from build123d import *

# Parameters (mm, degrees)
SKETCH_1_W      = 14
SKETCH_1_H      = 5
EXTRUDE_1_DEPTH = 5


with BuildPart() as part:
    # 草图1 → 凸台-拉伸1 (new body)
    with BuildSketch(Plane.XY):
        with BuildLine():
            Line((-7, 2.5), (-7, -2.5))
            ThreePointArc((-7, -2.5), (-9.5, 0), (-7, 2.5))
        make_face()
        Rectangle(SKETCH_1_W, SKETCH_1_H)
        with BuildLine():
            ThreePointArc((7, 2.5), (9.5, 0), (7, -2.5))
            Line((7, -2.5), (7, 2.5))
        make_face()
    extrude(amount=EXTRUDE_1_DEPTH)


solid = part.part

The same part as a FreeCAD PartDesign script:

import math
import FreeCAD as App
import Part
import Sketcher
from FreeCAD import Vector
Q = App.Units.Quantity

doc = App.newDocument("Part")
body = doc.addObject("PartDesign::Body", "Body")

# Sketch on XY plane
sketch1 = body.newObject("Sketcher::SketchObject", "Sketch")
sketch1.AttachmentSupport = (doc.getObject("XY_Plane"), [""])
sketch1.MapMode = "FlatFace"
sketch1.addGeometry(Part.ArcOfCircle(Part.Circle(Vector(-7, 0, 0), Vector(0, 0, 1), 2.5), math.radians(90), math.radians(270)), False)
sketch1.addGeometry(Part.LineSegment(Vector(-7, -2.5, 0), Vector(7, -2.5, 0)), False)
sketch1.addGeometry(Part.ArcOfCircle(Part.Circle(Vector(7, 0, 0), Vector(0, 0, 1), 2.5), math.radians(-90), math.radians(90)), False)
sketch1.addGeometry(Part.LineSegment(Vector(7, 2.5, 0), Vector(-7, 2.5, 0)), False)
sketch1.addConstraint(Sketcher.Constraint("Tangent", 0, 2, 1, 1))
sketch1.addConstraint(Sketcher.Constraint("Tangent", 1, 2, 2, 1))
sketch1.addConstraint(Sketcher.Constraint("Tangent", 2, 2, 3, 1))
sketch1.addConstraint(Sketcher.Constraint("Tangent", 3, 2, 0, 1))
sketch1.addConstraint(Sketcher.Constraint("Horizontal", 1))
sketch1.addConstraint(Sketcher.Constraint("Horizontal", 3))
sketch1.addConstraint(Sketcher.Constraint("Symmetric", 0, 3, 2, 3, -1, 1))
sketch1.addConstraint(Sketcher.Constraint("Radius", 0, Q("2.5 mm")))
sketch1.addConstraint(Sketcher.Constraint("DistanceX", 1, 1, 1, 2, Q("14 mm")))
pad1 = body.newObject("PartDesign::Pad", "Pad")
pad1.Profile = sketch1
pad1.Length = 5

doc.recompute()
